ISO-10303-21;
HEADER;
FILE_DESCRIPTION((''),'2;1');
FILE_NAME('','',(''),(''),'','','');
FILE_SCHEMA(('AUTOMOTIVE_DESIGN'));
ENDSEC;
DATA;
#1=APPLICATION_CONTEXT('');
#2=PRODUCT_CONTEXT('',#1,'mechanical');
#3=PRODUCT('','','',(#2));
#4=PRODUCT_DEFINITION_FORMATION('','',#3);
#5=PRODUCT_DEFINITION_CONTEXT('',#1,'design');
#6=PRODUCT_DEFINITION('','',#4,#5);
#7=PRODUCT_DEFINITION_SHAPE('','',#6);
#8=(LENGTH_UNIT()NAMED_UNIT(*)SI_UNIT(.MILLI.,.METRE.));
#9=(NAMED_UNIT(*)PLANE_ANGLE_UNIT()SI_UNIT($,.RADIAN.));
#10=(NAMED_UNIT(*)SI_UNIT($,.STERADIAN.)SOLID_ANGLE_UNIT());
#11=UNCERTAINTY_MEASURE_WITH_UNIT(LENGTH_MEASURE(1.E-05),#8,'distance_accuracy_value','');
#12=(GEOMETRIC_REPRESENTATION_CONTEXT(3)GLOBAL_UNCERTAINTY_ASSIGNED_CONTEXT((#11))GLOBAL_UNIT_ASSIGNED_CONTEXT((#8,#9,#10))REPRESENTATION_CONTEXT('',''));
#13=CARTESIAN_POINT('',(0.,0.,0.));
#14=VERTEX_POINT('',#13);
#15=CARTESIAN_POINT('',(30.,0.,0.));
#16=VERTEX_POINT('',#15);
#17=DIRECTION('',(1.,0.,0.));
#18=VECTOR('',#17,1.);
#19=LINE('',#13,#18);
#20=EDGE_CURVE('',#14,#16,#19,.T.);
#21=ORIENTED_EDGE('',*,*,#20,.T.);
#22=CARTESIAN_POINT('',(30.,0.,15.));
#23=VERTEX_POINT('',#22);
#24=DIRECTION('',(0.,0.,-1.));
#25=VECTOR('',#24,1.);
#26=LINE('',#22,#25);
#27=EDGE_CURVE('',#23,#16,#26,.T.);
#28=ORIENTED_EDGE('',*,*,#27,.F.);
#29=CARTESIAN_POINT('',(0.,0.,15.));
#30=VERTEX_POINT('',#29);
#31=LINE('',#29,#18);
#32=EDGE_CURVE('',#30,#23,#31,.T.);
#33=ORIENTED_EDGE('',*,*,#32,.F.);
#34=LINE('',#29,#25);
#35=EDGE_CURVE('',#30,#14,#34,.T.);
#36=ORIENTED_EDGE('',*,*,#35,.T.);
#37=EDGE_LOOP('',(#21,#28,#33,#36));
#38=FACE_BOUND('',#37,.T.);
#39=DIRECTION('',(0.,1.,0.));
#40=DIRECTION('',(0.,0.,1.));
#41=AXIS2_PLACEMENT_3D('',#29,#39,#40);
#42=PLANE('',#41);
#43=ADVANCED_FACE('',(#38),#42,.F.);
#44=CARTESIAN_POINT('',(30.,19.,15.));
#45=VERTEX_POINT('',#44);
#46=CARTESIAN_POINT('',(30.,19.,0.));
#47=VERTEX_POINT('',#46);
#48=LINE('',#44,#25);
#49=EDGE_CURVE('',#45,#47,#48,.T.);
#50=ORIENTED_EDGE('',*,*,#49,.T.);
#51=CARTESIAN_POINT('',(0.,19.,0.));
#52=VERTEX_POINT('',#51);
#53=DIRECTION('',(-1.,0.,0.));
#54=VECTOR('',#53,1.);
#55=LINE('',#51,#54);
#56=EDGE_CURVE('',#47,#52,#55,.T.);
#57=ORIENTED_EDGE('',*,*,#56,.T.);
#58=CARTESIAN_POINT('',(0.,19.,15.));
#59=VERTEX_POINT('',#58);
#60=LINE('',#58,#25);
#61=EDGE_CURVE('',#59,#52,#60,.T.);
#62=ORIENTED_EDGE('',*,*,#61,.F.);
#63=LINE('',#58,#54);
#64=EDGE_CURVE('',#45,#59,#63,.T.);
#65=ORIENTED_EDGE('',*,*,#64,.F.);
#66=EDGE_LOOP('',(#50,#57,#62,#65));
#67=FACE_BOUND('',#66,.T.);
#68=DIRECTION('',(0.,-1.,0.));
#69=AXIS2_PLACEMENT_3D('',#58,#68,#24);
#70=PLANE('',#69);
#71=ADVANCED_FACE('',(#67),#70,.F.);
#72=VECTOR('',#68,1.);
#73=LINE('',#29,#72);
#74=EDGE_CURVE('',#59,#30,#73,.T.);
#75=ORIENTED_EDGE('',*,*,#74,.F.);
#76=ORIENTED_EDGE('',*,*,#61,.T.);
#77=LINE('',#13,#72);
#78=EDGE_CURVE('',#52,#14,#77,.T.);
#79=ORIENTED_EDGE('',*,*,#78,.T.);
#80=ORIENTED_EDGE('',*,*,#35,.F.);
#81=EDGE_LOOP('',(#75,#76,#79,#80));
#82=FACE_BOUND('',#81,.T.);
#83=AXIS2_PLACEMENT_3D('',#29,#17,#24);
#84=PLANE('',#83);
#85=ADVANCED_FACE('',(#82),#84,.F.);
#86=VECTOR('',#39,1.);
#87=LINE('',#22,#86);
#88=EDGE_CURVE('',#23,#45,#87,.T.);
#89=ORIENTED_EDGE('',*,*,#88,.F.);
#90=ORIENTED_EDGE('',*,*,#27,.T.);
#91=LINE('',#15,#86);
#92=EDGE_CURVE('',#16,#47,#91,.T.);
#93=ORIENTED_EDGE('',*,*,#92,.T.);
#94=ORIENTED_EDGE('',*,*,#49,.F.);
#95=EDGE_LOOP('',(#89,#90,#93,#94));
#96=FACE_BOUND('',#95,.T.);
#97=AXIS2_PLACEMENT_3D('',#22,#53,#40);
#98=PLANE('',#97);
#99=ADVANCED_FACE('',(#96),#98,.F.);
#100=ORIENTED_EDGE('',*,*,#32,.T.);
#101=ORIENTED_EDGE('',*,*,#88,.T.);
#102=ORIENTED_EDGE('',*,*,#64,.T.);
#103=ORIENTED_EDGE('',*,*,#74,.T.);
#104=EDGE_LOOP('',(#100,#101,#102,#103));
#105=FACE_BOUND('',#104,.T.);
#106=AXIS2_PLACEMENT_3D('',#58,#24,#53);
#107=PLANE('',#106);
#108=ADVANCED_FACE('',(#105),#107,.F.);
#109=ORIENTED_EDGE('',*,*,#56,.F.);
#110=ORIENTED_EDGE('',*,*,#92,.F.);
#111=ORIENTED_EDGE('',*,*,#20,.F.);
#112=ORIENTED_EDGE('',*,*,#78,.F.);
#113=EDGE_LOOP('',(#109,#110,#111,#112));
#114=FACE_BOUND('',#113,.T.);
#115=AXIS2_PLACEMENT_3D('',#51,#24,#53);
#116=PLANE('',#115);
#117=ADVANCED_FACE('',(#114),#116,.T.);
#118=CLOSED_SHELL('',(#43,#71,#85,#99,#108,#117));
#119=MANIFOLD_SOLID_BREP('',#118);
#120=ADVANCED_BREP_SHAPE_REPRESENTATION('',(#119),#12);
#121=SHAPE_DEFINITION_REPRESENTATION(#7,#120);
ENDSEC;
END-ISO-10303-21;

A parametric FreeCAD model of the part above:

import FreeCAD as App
import Part
import Sketcher

V = App.Vector
Q = App.Units.Quantity


def add_polygon(sketch, points):
    """Adds a closed chain of lines whose ends are joined by coincident constraints."""
    first, n = sketch.GeometryCount, len(points)
    for a, b in zip(points, points[1:] + points[:1]):
        sketch.addGeometry(Part.LineSegment(App.Vector(*a, 0), App.Vector(*b, 0)), False)
    for i in range(n):
        sketch.addConstraint(Sketcher.Constraint("Coincident", first + i, 2, first + (i + 1) % n, 1))

doc = App.newDocument("Part")
body = doc.addObject("PartDesign::Body", "Body")

# Sketch on XY plane
sketch1 = body.newObject("Sketcher::SketchObject", "Sketch")
sketch1.AttachmentSupport = (doc.getObject("XY_Plane"), [""])
sketch1.MapMode = "FlatFace"
add_polygon(sketch1, [(0, 19), (0, 0), (30, 0), (30, 19)])  # lines 0-3
sketch1.addConstraint(Sketcher.Constraint("Vertical", 0))
sketch1.addConstraint(Sketcher.Constraint("Horizontal", 1))
sketch1.addConstraint(Sketcher.Constraint("Vertical", 2))
sketch1.addConstraint(Sketcher.Constraint("Horizontal", 3))
sketch1.addConstraint(Sketcher.Constraint("Coincident", 0, 2, -1, 1))
sketch1.addConstraint(Sketcher.Constraint("DistanceX", 1, 1, 1, 2, Q("30 mm")))
sketch1.addConstraint(Sketcher.Constraint("DistanceY", 0, 2, 0, 1, Q("19 mm")))
pad1 = body.newObject("PartDesign::Pad", "Pad")
pad1.Profile = sketch1
pad1.Length = 15

doc.recompute()
